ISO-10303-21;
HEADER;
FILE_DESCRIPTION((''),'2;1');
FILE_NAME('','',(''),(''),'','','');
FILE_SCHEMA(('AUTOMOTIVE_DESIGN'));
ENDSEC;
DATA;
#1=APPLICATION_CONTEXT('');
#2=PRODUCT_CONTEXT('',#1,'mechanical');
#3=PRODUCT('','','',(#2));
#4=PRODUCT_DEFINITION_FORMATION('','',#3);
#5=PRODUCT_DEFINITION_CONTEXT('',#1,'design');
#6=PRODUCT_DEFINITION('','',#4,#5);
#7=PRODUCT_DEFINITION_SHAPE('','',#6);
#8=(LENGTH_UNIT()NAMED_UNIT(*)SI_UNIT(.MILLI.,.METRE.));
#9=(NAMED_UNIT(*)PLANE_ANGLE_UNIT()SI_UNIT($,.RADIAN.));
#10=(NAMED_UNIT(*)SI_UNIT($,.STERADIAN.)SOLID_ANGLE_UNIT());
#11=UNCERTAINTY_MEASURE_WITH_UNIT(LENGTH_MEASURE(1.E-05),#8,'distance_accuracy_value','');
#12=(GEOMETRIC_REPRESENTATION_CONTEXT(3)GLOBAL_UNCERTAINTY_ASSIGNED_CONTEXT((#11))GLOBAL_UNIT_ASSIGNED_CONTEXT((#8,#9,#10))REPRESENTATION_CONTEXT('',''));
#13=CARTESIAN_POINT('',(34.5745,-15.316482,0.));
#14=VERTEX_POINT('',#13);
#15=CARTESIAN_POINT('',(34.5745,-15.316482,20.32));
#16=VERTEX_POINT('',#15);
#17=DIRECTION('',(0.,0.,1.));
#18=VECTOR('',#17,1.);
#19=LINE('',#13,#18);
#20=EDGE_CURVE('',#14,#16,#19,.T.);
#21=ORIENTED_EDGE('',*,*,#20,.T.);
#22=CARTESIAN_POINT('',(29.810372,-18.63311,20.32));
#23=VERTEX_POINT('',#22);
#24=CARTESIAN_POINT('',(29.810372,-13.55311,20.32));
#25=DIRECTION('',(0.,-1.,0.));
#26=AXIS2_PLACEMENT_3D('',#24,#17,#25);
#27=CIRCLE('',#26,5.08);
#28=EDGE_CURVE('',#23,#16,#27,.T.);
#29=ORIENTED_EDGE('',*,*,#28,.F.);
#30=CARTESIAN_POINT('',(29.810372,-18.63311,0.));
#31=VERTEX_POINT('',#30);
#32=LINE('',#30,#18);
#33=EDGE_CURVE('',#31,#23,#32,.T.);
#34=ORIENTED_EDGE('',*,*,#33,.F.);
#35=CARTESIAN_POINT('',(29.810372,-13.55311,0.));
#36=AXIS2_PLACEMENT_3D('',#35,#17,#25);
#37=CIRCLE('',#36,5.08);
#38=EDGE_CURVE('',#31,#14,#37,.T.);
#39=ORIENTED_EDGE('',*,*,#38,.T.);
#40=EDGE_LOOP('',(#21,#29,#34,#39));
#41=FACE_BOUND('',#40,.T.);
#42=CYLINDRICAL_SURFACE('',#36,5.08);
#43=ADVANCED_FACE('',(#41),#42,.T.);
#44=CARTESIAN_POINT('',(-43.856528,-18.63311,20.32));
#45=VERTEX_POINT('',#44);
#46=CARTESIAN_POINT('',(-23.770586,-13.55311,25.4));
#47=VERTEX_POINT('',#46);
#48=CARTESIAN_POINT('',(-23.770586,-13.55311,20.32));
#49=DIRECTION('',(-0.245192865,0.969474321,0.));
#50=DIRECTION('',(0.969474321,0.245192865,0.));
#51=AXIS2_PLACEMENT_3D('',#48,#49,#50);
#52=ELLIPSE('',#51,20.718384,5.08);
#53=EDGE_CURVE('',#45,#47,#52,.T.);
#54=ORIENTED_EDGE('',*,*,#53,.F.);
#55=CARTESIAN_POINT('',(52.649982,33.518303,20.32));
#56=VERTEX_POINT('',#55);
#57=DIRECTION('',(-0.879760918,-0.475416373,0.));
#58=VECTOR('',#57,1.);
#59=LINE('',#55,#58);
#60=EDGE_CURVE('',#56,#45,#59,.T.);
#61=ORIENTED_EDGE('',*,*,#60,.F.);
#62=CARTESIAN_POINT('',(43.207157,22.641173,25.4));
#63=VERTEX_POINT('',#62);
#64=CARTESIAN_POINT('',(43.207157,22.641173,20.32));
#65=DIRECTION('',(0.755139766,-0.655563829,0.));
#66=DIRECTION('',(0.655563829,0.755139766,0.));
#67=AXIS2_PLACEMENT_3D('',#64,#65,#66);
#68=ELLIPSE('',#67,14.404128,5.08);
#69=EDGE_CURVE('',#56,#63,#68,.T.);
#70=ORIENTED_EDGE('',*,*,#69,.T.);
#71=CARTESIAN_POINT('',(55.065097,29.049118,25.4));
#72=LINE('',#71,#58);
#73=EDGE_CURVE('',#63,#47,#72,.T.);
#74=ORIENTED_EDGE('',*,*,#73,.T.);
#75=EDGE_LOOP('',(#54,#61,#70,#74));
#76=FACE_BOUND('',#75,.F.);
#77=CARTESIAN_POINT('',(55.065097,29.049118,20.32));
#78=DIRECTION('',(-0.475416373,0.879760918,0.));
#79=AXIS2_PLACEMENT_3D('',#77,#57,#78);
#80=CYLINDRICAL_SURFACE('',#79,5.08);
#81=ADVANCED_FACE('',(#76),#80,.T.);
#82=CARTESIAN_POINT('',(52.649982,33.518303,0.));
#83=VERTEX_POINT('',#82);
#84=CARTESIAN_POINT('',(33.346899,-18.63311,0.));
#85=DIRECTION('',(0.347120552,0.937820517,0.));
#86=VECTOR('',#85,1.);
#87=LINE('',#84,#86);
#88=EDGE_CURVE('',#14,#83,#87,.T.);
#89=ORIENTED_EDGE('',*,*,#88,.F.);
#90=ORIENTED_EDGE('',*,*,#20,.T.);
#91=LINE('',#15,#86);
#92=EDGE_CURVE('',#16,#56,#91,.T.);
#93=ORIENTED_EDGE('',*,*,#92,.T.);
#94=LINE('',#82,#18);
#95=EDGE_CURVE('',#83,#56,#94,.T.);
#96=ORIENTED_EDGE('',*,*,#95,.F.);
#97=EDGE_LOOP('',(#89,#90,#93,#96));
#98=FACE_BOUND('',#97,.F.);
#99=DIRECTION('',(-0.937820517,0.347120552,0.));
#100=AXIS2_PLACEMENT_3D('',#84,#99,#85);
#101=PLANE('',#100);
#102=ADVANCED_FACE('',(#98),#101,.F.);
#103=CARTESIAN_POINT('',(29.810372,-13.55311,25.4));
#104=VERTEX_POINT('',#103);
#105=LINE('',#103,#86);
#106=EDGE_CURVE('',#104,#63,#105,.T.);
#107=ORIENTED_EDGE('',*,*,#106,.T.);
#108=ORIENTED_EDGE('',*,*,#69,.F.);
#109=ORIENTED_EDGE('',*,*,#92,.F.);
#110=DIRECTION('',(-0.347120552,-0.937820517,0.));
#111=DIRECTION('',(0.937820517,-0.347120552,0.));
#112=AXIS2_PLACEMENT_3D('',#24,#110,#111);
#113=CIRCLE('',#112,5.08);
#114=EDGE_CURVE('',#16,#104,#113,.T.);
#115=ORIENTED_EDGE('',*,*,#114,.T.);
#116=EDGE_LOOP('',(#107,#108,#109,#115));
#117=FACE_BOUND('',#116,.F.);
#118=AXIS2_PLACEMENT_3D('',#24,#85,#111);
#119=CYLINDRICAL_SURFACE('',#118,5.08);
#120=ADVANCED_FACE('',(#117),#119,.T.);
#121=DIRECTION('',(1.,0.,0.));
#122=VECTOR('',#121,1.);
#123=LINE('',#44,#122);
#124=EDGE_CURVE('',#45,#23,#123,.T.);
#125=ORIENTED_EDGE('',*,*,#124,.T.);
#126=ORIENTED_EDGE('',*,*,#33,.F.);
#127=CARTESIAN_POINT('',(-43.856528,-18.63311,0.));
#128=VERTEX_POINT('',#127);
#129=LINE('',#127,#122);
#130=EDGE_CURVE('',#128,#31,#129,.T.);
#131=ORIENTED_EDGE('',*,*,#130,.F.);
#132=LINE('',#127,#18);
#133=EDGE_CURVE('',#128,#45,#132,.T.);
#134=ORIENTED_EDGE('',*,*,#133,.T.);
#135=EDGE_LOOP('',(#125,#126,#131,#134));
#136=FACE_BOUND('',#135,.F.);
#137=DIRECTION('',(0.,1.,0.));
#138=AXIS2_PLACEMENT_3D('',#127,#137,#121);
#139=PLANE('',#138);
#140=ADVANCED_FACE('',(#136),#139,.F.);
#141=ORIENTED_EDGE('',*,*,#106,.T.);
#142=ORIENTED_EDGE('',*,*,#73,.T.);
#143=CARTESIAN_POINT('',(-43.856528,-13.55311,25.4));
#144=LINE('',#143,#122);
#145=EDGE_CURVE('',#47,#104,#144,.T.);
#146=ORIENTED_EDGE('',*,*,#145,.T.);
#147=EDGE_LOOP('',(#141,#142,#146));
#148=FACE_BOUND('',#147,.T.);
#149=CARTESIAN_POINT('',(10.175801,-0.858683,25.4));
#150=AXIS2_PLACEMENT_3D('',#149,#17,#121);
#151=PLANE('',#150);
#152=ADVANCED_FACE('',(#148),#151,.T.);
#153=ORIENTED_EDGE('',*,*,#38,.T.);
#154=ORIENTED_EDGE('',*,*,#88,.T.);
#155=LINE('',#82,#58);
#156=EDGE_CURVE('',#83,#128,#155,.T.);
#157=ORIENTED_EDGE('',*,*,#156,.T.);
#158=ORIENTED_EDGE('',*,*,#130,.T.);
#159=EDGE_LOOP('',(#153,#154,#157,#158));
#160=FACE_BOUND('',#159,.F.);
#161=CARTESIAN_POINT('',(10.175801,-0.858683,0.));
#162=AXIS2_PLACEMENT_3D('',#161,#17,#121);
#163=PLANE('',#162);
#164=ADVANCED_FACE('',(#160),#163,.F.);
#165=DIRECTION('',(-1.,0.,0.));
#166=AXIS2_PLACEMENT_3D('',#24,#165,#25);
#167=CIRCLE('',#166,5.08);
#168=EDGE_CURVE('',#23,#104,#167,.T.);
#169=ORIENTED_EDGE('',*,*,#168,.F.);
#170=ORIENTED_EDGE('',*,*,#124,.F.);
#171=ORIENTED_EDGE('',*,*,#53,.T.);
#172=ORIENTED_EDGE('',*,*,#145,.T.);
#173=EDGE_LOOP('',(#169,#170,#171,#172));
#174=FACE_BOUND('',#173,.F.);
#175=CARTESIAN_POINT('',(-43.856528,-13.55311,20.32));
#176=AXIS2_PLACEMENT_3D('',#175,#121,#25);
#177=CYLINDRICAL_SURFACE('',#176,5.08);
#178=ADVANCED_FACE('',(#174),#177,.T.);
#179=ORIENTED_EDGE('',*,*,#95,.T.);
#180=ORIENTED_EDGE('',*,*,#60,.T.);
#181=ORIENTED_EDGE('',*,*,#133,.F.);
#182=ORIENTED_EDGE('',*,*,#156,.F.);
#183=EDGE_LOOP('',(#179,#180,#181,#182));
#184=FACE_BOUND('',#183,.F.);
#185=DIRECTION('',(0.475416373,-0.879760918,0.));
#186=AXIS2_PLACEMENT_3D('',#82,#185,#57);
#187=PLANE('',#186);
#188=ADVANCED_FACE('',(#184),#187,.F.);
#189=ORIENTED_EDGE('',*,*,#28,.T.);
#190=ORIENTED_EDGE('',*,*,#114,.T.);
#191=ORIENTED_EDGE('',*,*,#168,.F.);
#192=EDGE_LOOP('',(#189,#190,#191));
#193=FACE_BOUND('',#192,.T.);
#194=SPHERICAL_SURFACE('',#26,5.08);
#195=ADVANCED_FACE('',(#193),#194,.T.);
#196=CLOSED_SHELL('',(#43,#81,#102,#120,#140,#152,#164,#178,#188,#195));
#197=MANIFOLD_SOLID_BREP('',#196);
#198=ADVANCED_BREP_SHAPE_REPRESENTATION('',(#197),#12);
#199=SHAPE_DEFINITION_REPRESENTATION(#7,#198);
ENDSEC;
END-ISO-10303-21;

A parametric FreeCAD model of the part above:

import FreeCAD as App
import Part
import Sketcher
from FreeCAD import Vector
Q = App.Units.Quantity


def edges_at(feature, points):
    """Names of the edges that pass closest to the given points."""
    edges = feature.Shape.Edges
    near = lambda p: min(range(len(edges)), key=lambda i: edges[i].distToShape(Part.Vertex(*p))[0])
    return sorted({f"Edge{near(p) + 1}" for p in points})


def add_polygon(sketch, points):
    """Adds a closed chain of lines whose ends are joined by coincident constraints."""
    first, n = sketch.GeometryCount, len(points)
    for a, b in zip(points, points[1:] + points[:1]):
        sketch.addGeometry(Part.LineSegment(App.Vector(*a, 0), App.Vector(*b, 0)), False)
    for i in range(n):
        sketch.addConstraint(Sketcher.Constraint("Coincident", first + i, 2, first + (i + 1) % n, 1))

doc = App.newDocument("Part")
body = doc.addObject("PartDesign::Body", "Body")

# Sketch on XY plane
sketch1 = doc.addObject("Sketcher::SketchObject", "Sketch")
body.addObject(sketch1)
sketch1.AttachmentSupport = (doc.XY_Plane, [""])
sketch1.MapMode = "FlatFace"
add_polygon(sketch1, [(53, 34), (-44, -19), (33, -19)])  # lines 0-2
sketch1.addConstraint(Sketcher.Constraint("Horizontal", 1))
sketch1.addConstraint(Sketcher.Constraint("DistanceX", -1, 1, 1, 2, 33.346899))
sketch1.addConstraint(Sketcher.Constraint("Distance", 0, 109.696291))
sketch1.addConstraint(Sketcher.Constraint("Distance", 2, 55.609162))
sketch1.addConstraint(Sketcher.Constraint("DistanceX", 1, 1, 1, 2, 77.203427))
sketch1.addConstraint(Sketcher.Constraint("DistanceY", 0, 2, -1, 1, 18.63311))
pad1 = doc.addObject("PartDesign::Pad", "Pad")
body.addObject(pad1)
pad1.Profile = sketch1
pad1.Length = Q("1 in")
doc.recompute()

fillet = doc.addObject("PartDesign::Fillet", "Fillet")
body.addObject(fillet)
fillet.Base = (pad1, edges_at(pad1, [(33.347, -18.633, 12.7)]))
fillet.Radius = Q("0.2 in")
doc.recompute()

fillet2 = doc.addObject("PartDesign::Fillet", "Fillet001")
body.addObject(fillet2)
fillet2.Base = (fillet, edges_at(fillet, [
    (-7.023, -18.633, 25.4),
    (32.713, -17.722, 25.4),
    (4.397, 7.443, 25.4),
    (43.612, 9.101, 25.4),
]))
fillet2.Radius = Q("0.2 in")

doc.recompute()
